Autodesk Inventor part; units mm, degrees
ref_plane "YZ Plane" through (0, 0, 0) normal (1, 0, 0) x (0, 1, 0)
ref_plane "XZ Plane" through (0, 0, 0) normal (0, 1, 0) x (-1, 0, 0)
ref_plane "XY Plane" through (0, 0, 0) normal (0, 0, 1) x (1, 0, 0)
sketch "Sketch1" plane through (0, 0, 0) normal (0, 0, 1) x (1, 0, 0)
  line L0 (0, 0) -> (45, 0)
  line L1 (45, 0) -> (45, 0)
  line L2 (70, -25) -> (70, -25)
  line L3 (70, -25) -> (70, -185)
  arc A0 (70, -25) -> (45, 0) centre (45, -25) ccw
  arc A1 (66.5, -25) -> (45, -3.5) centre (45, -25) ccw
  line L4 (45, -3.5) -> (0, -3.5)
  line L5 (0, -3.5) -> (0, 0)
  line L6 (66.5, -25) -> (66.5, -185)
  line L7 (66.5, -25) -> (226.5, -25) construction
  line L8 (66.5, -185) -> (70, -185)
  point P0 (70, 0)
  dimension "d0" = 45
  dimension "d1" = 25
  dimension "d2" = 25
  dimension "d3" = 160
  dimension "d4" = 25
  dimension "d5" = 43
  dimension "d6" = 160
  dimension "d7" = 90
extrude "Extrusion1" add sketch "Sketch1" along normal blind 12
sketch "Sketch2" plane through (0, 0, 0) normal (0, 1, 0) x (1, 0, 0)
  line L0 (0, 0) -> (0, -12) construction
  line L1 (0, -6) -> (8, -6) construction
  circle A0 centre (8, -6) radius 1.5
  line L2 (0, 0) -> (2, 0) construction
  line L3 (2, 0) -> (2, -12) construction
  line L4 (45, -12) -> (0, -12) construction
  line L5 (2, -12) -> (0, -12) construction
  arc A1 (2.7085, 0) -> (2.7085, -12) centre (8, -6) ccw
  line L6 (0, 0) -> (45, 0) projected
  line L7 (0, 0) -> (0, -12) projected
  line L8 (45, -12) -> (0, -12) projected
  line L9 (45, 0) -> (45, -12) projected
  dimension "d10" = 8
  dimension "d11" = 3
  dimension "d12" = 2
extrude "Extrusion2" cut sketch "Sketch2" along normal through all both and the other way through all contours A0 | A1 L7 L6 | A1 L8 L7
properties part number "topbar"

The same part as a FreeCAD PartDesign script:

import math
import FreeCAD as App
import Part
import Sketcher
from FreeCAD import Vector
Q = App.Units.Quantity

doc = App.newDocument("Part")
params = doc.addObject("Spreadsheet::Sheet", "Params")
for row, (alias, value) in enumerate([
    ("sketch1_radius", "25 mm"),
    ("sketch1_radius2", "21.5 mm"),
    ("sketch1_width", "45 mm"),
    ("sketch1_height", "160 mm"),
    ("pad1_length", "12 mm"),
    ("sketch2_diameter", "3 mm"),
    ("sketch2_radius", "8 mm"),
    ("sketch2_height", "6 mm"),
], start=1):
    params.set(f"A{row}", alias)
    params.set(f"B{row}", "=" + value)
    params.setAlias(f"B{row}", alias)

body = doc.addObject("PartDesign::Body", "Body")

sketch1 = body.newObject("Sketcher::SketchObject", "Sketch")
sketch1.AttachmentSupport = (doc.getObject("XY_Plane"), [""])
sketch1.MapMode = "FlatFace"
sketch1.addGeometry([
    Part.LineSegment(Vector(45, 0, 0), Vector(0, 0, 0)),
    Part.LineSegment(Vector(0, 0, 0), Vector(0, -3.5, 0)),
    Part.LineSegment(Vector(0, -3.5, 0), Vector(45, -3.5, 0)),
    Part.ArcOfCircle(Part.Circle(Vector(45, -25, 0), Vector(0, 0, 1), 21.5), math.radians(0), math.radians(90)),
    Part.LineSegment(Vector(66.5, -25, 0), Vector(66.5, -185, 0)),
    Part.LineSegment(Vector(66.5, -185, 0), Vector(70, -185, 0)),
    Part.LineSegment(Vector(70, -185, 0), Vector(70, -25, 0)),
    Part.ArcOfCircle(Part.Circle(Vector(45, -25, 0), Vector(0, 0, 1), 25), math.radians(0), math.radians(90)),
], False)
sketch1.addConstraint([
    Sketcher.Constraint("Coincident", 0, 2, 1, 1),
    Sketcher.Constraint("Coincident", 1, 2, 2, 1),
    Sketcher.Constraint("Tangent", 2, 2, 3, 2),
    Sketcher.Constraint("Tangent", 3, 1, 4, 1),
    Sketcher.Constraint("Coincident", 4, 2, 5, 1),
    Sketcher.Constraint("Coincident", 5, 2, 6, 1),
    Sketcher.Constraint("Tangent", 6, 2, 7, 1),
    Sketcher.Constraint("Tangent", 7, 2, 0, 1),
    Sketcher.Constraint("Horizontal", 0),
    Sketcher.Constraint("Vertical", 1),
    Sketcher.Constraint("Horizontal", 2),
    Sketcher.Constraint("Vertical", 4),
    Sketcher.Constraint("Horizontal", 5),
    Sketcher.Constraint("Vertical", 6),
    Sketcher.Constraint("Coincident", 0, 2, -1, 1),
    Sketcher.Constraint("Coincident", 7, 3, 3, 3),
    Sketcher.Constraint("Radius", 7, Q("25 mm")),
    Sketcher.Constraint("Radius", 3, Q("21.5 mm")),
    Sketcher.Constraint("DistanceX", 0, 2, 0, 1, Q("45 mm")),
    Sketcher.Constraint("DistanceY", 4, 2, 4, 1, Q("160 mm")),
])
sketch1.setExpression("Constraints[16]", "Params.sketch1_radius")
sketch1.setExpression("Constraints[17]", "Params.sketch1_radius2")
sketch1.setExpression("Constraints[18]", "Params.sketch1_width")
sketch1.setExpression("Constraints[19]", "Params.sketch1_height")
pad1 = body.newObject("PartDesign::Pad", "Pad")
pad1.Profile = sketch1
pad1.setExpression("Length", "Params.pad1_length")

sketch2 = body.newObject("Sketcher::SketchObject", "Sketch001")
sketch2.AttachmentSupport = (doc.getObject("XZ_Plane"), [""])
sketch2.MapMode = "FlatFace"
sketch2.addGeometry([
    Part.Circle(Vector(8, 6, 0), Vector(0, 0, 1), 1.5),
    Part.ArcOfCircle(Part.Circle(Vector(8, 6, 0), Vector(0, 0, 1), 8), math.radians(-180), math.radians(-131)),
    Part.LineSegment(Vector(2.7, 0, 0), Vector(0, 0, 0)),
    Part.LineSegment(Vector(0, 0, 0), Vector(0, 6, 0)),
    Part.ArcOfCircle(Part.Circle(Vector(8, 6, 0), Vector(0, 0, 1), 8), math.radians(131), math.radians(180)),
    Part.LineSegment(Vector(0, 6, 0), Vector(0, 12, 0)),
    Part.LineSegment(Vector(0, 12, 0), Vector(2.7, 12, 0)),
], False)
sketch2.addConstraint([
    Sketcher.Constraint("Coincident", 1, 2, 2, 1),
    Sketcher.Constraint("Coincident", 2, 2, 3, 1),
    Sketcher.Constraint("Tangent", 3, 2, 1, 1),
    Sketcher.Constraint("Tangent", 4, 2, 5, 1),
    Sketcher.Constraint("Coincident", 5, 2, 6, 1),
    Sketcher.Constraint("Coincident", 6, 2, 4, 1),
    Sketcher.Constraint("Horizontal", 2),
    Sketcher.Constraint("Vertical", 3),
    Sketcher.Constraint("Vertical", 5),
    Sketcher.Constraint("Horizontal", 6),
    Sketcher.Constraint("Coincident", 2, 2, -1, 1),
    Sketcher.Constraint("Coincident", 1, 3, 0, 3),
    Sketcher.Constraint("Coincident", 4, 3, 0, 3),
    Sketcher.Constraint("Equal", 1, 4),
    Sketcher.Constraint("Vertical", 1, 2, 6, 2),
    Sketcher.Constraint("Diameter", 0, Q("3 mm")),
    Sketcher.Constraint("Radius", 1, Q("8 mm")),
    Sketcher.Constraint("DistanceY", 3, 1, 3, 2, Q("6 mm")),
])
sketch2.setExpression("Constraints[15]", "Params.sketch2_diameter")
sketch2.setExpression("Constraints[16]", "Params.sketch2_radius")
sketch2.setExpression("Constraints[17]", "Params.sketch2_height")
pocket1 = body.newObject("PartDesign::Pocket", "Pocket")
pocket1.Profile = sketch2
pocket1.Type = "ThroughAll"
pocket1.Midplane = True

doc.recompute()
